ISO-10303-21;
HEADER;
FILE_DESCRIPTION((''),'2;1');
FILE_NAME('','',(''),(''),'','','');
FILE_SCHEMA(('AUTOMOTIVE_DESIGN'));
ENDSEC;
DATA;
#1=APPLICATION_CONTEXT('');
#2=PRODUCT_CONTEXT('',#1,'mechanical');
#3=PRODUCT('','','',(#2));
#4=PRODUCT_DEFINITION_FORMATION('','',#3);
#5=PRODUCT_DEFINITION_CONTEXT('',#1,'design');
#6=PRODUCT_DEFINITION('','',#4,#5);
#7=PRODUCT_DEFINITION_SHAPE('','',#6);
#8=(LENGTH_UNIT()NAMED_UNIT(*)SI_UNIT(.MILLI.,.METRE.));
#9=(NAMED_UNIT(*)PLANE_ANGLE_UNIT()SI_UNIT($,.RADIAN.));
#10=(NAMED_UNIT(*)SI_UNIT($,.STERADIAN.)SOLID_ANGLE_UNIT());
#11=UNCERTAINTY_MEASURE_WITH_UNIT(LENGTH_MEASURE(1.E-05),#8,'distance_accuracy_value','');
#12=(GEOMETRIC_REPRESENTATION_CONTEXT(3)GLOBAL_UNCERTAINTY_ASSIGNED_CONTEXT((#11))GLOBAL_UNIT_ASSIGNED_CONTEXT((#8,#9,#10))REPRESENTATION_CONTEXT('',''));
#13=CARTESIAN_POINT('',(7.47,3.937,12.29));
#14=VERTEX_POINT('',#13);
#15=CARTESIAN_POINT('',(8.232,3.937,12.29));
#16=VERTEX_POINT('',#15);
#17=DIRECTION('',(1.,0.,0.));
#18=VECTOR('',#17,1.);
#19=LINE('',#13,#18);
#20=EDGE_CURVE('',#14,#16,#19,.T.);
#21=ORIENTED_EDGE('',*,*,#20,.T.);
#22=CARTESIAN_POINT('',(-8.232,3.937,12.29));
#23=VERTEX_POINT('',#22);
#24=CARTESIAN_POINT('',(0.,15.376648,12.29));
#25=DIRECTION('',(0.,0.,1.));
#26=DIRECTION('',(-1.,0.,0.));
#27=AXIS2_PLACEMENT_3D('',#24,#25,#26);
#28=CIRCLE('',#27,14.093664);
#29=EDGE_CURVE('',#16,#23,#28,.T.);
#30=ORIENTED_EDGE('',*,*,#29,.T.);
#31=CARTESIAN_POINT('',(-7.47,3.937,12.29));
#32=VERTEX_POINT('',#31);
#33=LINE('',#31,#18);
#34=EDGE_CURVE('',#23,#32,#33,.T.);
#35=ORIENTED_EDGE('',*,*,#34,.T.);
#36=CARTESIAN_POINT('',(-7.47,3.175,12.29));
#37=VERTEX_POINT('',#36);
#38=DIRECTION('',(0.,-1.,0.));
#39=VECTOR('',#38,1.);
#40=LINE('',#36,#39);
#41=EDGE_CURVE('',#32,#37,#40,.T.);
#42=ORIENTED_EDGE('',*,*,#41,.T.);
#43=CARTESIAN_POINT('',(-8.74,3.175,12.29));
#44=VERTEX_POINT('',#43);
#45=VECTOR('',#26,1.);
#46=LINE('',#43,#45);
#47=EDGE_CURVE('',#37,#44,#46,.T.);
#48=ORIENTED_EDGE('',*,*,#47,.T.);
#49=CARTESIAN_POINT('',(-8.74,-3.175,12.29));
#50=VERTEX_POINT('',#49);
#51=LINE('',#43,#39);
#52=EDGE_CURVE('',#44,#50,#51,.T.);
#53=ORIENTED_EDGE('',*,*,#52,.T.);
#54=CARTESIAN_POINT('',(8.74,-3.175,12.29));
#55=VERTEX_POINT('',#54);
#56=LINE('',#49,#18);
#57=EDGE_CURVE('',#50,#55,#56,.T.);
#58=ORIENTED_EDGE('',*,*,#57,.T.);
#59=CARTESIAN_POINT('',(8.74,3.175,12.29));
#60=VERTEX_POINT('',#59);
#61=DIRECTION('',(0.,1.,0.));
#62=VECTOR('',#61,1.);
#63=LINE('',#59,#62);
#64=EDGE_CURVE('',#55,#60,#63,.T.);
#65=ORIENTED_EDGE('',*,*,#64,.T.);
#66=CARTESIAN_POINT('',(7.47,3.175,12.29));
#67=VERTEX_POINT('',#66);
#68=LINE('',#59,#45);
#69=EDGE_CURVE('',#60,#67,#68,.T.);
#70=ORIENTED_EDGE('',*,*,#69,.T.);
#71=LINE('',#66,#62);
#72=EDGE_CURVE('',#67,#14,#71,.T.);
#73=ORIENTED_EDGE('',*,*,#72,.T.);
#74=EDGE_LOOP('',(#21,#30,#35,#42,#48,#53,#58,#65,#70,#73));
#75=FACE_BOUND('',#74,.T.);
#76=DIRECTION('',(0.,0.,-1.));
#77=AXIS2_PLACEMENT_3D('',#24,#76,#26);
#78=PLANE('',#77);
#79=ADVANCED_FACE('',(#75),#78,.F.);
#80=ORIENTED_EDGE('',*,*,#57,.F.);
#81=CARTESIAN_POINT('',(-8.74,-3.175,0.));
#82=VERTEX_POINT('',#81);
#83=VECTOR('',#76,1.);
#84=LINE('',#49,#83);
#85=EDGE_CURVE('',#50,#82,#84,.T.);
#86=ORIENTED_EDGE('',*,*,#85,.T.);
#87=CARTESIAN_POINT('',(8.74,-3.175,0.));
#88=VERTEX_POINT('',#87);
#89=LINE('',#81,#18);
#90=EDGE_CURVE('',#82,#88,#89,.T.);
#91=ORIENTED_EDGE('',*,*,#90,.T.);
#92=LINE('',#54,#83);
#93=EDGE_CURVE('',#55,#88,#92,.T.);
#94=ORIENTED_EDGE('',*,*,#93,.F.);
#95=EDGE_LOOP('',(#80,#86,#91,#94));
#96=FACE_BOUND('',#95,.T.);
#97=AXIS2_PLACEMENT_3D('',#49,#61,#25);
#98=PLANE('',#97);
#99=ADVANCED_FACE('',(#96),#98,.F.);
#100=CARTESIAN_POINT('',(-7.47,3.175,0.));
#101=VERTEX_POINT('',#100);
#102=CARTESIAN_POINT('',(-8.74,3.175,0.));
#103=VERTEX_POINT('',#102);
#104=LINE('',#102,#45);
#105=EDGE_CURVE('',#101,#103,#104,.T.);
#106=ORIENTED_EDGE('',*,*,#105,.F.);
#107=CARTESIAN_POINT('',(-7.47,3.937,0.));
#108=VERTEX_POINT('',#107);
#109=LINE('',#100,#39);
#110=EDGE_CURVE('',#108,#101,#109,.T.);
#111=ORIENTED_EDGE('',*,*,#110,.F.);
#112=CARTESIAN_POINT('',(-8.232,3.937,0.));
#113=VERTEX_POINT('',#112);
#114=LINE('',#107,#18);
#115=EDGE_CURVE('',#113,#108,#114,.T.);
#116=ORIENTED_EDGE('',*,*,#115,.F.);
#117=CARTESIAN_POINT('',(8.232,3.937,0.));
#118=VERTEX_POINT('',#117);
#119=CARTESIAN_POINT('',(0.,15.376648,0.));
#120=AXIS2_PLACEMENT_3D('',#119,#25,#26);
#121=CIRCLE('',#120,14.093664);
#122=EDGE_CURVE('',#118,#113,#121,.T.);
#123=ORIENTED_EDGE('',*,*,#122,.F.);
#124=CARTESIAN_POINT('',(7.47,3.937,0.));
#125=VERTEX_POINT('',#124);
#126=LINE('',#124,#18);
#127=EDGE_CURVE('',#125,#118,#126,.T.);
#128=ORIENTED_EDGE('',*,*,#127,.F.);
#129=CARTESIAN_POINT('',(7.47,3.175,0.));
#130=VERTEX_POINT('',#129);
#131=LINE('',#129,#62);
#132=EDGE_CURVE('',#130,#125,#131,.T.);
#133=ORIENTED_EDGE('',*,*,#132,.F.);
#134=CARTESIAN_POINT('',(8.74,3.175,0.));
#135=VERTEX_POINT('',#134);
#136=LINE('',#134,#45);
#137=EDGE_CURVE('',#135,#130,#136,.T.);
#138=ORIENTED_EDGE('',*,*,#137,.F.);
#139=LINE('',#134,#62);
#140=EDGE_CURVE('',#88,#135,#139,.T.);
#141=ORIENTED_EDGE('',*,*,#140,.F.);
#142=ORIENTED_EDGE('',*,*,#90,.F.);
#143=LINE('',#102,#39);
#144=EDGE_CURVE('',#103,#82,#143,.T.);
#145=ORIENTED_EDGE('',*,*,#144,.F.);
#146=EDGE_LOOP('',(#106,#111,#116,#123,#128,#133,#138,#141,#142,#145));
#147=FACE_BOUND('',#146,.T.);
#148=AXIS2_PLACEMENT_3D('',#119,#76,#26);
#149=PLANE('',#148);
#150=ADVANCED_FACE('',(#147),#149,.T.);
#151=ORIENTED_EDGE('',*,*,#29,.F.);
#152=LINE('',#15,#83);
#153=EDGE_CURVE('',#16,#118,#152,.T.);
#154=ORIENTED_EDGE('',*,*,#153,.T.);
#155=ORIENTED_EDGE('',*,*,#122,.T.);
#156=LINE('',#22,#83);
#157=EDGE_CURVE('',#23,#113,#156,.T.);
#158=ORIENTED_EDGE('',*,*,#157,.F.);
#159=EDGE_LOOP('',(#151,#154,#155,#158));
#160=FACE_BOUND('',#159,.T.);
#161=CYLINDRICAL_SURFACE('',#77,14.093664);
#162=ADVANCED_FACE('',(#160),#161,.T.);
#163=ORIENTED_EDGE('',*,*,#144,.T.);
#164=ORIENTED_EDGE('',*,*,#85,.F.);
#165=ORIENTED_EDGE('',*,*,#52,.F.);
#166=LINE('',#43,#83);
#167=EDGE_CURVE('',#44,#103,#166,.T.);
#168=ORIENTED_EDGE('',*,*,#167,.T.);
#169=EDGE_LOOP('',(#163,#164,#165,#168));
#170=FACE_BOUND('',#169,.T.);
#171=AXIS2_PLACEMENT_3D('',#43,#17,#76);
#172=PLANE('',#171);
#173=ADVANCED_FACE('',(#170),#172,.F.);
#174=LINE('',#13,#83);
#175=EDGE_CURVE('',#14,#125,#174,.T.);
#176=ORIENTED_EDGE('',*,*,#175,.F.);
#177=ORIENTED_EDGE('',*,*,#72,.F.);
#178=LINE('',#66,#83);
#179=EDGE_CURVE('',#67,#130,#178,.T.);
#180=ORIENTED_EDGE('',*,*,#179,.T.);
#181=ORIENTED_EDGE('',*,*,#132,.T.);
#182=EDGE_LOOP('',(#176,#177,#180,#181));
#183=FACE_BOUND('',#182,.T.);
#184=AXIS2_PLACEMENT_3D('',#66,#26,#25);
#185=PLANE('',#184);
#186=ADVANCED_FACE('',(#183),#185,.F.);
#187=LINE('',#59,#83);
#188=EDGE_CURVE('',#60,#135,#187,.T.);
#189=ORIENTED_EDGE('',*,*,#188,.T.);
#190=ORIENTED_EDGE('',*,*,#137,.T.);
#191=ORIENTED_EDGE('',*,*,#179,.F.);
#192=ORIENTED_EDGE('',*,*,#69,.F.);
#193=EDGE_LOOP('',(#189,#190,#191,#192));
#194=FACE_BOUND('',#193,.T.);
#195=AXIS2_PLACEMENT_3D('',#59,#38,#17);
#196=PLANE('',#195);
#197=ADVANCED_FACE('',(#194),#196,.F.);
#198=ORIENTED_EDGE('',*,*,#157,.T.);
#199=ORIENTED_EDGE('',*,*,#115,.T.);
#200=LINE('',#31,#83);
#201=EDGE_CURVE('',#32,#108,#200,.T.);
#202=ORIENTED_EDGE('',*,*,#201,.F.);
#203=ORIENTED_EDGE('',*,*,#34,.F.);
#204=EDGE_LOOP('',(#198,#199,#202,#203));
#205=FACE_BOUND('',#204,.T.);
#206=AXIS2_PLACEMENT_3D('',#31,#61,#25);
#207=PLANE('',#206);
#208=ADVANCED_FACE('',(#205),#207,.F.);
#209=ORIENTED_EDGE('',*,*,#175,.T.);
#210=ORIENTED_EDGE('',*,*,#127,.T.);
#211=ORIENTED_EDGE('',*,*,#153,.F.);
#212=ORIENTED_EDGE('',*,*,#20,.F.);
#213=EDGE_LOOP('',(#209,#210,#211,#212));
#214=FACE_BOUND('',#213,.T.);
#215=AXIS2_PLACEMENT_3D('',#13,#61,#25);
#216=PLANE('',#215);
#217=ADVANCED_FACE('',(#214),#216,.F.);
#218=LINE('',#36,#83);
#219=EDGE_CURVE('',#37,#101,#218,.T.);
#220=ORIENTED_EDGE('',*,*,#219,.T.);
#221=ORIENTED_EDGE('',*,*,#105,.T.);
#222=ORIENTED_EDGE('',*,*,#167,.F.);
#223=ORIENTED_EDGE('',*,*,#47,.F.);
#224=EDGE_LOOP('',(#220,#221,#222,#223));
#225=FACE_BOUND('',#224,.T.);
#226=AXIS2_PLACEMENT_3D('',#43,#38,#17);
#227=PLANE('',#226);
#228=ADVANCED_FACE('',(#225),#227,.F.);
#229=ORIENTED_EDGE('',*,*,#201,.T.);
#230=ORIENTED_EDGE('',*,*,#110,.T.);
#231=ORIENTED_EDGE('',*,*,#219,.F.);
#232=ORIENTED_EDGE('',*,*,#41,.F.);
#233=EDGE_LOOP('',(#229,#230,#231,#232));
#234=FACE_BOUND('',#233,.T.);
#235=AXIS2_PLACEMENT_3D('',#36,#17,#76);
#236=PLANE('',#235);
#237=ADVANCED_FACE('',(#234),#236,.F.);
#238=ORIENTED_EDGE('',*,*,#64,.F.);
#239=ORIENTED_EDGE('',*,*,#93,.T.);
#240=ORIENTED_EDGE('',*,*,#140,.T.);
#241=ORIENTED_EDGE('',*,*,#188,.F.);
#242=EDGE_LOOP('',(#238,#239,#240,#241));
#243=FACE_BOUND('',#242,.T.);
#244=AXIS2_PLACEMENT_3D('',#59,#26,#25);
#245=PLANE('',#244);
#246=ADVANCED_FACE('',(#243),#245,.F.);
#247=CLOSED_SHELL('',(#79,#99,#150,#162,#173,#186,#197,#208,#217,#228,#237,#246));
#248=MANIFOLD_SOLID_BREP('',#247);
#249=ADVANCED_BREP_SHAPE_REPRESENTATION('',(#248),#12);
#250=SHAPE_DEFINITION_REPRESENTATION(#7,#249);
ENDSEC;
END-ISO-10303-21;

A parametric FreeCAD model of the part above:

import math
import FreeCAD as App
import Part
import Sketcher
Q = App.Units.Quantity

doc = App.newDocument("Part")
body = doc.addObject("PartDesign::Body", "Body")

# Sketch on XY plane
sketch1 = body.newObject("Sketcher::SketchObject", "Sketch")
sketch1.AttachmentSupport = (doc.getObject("XY_Plane"), [""])
sketch1.MapMode = "FlatFace"
sketch1.addGeometry([
    Part.LineSegment(App.Vector(-7.5, 3.2, 0), App.Vector(-8.7, 3.2, 0)),  # 0
    Part.LineSegment(App.Vector(-8.7, 3.2, 0), App.Vector(-8.7, -3.2, 0)),  # 1
    Part.LineSegment(App.Vector(-8.7, -3.2, 0), App.Vector(8.7, -3.2, 0)),  # 2
    Part.LineSegment(App.Vector(8.7, -3.2, 0), App.Vector(8.7, 3.2, 0)),  # 3
    Part.LineSegment(App.Vector(8.7, 3.2, 0), App.Vector(7.5, 3.2, 0)),  # 4
    Part.LineSegment(App.Vector(7.5, 3.2, 0), App.Vector(7.5, 3.9, 0)),  # 5
    Part.LineSegment(App.Vector(7.5, 3.9, 0), App.Vector(8.2, 3.9, 0)),  # 6
    Part.ArcOfCircle(Part.Circle(App.Vector(0, 15.4, 0), App.Vector(0, 0, 1), 14.1), math.radians(-54), math.radians(234)),  # 7
    Part.LineSegment(App.Vector(-8.2, 3.9, 0), App.Vector(-7.5, 3.9, 0)),  # 8
    Part.LineSegment(App.Vector(-7.5, 3.9, 0), App.Vector(-7.5, 3.2, 0)),  # 9
], False)
sketch1.addConstraint([
    Sketcher.Constraint("Coincident", 0, 2, 1, 1),
    Sketcher.Constraint("Coincident", 1, 2, 2, 1),
    Sketcher.Constraint("Coincident", 2, 2, 3, 1),
    Sketcher.Constraint("Coincident", 3, 2, 4, 1),
    Sketcher.Constraint("Coincident", 4, 2, 5, 1),
    Sketcher.Constraint("Coincident", 5, 2, 6, 1),
    Sketcher.Constraint("Coincident", 6, 2, 7, 1),
    Sketcher.Constraint("Coincident", 7, 2, 8, 1),
    Sketcher.Constraint("Coincident", 8, 2, 9, 1),
    Sketcher.Constraint("Coincident", 9, 2, 0, 1),
    Sketcher.Constraint("Horizontal", 0),
    Sketcher.Constraint("Vertical", 1),
    Sketcher.Constraint("Horizontal", 2),
    Sketcher.Constraint("Vertical", 3),
    Sketcher.Constraint("Horizontal", 4),
    Sketcher.Constraint("Vertical", 5),
    Sketcher.Constraint("Horizontal", 6),
    Sketcher.Constraint("Horizontal", 8),
    Sketcher.Constraint("Vertical", 9),
    Sketcher.Constraint("Symmetric", 0, 2, 2, 2, -1, 1),
    Sketcher.Constraint("Symmetric", 6, 2, 7, 2, -2),
    Sketcher.Constraint("Symmetric", 4, 2, 9, 2, -2),
    Sketcher.Constraint("Equal", 8, 5),
    Sketcher.Constraint("DistanceX", 0, 2, 0, 1, Q("0.05 in")),
    Sketcher.Constraint("DistanceX", 6, 1, 6, 2, Q("0.03 in")),
    Sketcher.Constraint("DistanceY", 1, 2, 1, 1, Q("0.25 in")),
    Sketcher.Constraint("DistanceX", 2, 1, 2, 2, Q("17.48 mm")),
    Sketcher.Constraint("Radius", 7, Q("14.093664 mm")),
])
pad1 = body.newObject("PartDesign::Pad", "Pad")
pad1.Profile = sketch1
pad1.Length = 12.29

doc.recompute()
